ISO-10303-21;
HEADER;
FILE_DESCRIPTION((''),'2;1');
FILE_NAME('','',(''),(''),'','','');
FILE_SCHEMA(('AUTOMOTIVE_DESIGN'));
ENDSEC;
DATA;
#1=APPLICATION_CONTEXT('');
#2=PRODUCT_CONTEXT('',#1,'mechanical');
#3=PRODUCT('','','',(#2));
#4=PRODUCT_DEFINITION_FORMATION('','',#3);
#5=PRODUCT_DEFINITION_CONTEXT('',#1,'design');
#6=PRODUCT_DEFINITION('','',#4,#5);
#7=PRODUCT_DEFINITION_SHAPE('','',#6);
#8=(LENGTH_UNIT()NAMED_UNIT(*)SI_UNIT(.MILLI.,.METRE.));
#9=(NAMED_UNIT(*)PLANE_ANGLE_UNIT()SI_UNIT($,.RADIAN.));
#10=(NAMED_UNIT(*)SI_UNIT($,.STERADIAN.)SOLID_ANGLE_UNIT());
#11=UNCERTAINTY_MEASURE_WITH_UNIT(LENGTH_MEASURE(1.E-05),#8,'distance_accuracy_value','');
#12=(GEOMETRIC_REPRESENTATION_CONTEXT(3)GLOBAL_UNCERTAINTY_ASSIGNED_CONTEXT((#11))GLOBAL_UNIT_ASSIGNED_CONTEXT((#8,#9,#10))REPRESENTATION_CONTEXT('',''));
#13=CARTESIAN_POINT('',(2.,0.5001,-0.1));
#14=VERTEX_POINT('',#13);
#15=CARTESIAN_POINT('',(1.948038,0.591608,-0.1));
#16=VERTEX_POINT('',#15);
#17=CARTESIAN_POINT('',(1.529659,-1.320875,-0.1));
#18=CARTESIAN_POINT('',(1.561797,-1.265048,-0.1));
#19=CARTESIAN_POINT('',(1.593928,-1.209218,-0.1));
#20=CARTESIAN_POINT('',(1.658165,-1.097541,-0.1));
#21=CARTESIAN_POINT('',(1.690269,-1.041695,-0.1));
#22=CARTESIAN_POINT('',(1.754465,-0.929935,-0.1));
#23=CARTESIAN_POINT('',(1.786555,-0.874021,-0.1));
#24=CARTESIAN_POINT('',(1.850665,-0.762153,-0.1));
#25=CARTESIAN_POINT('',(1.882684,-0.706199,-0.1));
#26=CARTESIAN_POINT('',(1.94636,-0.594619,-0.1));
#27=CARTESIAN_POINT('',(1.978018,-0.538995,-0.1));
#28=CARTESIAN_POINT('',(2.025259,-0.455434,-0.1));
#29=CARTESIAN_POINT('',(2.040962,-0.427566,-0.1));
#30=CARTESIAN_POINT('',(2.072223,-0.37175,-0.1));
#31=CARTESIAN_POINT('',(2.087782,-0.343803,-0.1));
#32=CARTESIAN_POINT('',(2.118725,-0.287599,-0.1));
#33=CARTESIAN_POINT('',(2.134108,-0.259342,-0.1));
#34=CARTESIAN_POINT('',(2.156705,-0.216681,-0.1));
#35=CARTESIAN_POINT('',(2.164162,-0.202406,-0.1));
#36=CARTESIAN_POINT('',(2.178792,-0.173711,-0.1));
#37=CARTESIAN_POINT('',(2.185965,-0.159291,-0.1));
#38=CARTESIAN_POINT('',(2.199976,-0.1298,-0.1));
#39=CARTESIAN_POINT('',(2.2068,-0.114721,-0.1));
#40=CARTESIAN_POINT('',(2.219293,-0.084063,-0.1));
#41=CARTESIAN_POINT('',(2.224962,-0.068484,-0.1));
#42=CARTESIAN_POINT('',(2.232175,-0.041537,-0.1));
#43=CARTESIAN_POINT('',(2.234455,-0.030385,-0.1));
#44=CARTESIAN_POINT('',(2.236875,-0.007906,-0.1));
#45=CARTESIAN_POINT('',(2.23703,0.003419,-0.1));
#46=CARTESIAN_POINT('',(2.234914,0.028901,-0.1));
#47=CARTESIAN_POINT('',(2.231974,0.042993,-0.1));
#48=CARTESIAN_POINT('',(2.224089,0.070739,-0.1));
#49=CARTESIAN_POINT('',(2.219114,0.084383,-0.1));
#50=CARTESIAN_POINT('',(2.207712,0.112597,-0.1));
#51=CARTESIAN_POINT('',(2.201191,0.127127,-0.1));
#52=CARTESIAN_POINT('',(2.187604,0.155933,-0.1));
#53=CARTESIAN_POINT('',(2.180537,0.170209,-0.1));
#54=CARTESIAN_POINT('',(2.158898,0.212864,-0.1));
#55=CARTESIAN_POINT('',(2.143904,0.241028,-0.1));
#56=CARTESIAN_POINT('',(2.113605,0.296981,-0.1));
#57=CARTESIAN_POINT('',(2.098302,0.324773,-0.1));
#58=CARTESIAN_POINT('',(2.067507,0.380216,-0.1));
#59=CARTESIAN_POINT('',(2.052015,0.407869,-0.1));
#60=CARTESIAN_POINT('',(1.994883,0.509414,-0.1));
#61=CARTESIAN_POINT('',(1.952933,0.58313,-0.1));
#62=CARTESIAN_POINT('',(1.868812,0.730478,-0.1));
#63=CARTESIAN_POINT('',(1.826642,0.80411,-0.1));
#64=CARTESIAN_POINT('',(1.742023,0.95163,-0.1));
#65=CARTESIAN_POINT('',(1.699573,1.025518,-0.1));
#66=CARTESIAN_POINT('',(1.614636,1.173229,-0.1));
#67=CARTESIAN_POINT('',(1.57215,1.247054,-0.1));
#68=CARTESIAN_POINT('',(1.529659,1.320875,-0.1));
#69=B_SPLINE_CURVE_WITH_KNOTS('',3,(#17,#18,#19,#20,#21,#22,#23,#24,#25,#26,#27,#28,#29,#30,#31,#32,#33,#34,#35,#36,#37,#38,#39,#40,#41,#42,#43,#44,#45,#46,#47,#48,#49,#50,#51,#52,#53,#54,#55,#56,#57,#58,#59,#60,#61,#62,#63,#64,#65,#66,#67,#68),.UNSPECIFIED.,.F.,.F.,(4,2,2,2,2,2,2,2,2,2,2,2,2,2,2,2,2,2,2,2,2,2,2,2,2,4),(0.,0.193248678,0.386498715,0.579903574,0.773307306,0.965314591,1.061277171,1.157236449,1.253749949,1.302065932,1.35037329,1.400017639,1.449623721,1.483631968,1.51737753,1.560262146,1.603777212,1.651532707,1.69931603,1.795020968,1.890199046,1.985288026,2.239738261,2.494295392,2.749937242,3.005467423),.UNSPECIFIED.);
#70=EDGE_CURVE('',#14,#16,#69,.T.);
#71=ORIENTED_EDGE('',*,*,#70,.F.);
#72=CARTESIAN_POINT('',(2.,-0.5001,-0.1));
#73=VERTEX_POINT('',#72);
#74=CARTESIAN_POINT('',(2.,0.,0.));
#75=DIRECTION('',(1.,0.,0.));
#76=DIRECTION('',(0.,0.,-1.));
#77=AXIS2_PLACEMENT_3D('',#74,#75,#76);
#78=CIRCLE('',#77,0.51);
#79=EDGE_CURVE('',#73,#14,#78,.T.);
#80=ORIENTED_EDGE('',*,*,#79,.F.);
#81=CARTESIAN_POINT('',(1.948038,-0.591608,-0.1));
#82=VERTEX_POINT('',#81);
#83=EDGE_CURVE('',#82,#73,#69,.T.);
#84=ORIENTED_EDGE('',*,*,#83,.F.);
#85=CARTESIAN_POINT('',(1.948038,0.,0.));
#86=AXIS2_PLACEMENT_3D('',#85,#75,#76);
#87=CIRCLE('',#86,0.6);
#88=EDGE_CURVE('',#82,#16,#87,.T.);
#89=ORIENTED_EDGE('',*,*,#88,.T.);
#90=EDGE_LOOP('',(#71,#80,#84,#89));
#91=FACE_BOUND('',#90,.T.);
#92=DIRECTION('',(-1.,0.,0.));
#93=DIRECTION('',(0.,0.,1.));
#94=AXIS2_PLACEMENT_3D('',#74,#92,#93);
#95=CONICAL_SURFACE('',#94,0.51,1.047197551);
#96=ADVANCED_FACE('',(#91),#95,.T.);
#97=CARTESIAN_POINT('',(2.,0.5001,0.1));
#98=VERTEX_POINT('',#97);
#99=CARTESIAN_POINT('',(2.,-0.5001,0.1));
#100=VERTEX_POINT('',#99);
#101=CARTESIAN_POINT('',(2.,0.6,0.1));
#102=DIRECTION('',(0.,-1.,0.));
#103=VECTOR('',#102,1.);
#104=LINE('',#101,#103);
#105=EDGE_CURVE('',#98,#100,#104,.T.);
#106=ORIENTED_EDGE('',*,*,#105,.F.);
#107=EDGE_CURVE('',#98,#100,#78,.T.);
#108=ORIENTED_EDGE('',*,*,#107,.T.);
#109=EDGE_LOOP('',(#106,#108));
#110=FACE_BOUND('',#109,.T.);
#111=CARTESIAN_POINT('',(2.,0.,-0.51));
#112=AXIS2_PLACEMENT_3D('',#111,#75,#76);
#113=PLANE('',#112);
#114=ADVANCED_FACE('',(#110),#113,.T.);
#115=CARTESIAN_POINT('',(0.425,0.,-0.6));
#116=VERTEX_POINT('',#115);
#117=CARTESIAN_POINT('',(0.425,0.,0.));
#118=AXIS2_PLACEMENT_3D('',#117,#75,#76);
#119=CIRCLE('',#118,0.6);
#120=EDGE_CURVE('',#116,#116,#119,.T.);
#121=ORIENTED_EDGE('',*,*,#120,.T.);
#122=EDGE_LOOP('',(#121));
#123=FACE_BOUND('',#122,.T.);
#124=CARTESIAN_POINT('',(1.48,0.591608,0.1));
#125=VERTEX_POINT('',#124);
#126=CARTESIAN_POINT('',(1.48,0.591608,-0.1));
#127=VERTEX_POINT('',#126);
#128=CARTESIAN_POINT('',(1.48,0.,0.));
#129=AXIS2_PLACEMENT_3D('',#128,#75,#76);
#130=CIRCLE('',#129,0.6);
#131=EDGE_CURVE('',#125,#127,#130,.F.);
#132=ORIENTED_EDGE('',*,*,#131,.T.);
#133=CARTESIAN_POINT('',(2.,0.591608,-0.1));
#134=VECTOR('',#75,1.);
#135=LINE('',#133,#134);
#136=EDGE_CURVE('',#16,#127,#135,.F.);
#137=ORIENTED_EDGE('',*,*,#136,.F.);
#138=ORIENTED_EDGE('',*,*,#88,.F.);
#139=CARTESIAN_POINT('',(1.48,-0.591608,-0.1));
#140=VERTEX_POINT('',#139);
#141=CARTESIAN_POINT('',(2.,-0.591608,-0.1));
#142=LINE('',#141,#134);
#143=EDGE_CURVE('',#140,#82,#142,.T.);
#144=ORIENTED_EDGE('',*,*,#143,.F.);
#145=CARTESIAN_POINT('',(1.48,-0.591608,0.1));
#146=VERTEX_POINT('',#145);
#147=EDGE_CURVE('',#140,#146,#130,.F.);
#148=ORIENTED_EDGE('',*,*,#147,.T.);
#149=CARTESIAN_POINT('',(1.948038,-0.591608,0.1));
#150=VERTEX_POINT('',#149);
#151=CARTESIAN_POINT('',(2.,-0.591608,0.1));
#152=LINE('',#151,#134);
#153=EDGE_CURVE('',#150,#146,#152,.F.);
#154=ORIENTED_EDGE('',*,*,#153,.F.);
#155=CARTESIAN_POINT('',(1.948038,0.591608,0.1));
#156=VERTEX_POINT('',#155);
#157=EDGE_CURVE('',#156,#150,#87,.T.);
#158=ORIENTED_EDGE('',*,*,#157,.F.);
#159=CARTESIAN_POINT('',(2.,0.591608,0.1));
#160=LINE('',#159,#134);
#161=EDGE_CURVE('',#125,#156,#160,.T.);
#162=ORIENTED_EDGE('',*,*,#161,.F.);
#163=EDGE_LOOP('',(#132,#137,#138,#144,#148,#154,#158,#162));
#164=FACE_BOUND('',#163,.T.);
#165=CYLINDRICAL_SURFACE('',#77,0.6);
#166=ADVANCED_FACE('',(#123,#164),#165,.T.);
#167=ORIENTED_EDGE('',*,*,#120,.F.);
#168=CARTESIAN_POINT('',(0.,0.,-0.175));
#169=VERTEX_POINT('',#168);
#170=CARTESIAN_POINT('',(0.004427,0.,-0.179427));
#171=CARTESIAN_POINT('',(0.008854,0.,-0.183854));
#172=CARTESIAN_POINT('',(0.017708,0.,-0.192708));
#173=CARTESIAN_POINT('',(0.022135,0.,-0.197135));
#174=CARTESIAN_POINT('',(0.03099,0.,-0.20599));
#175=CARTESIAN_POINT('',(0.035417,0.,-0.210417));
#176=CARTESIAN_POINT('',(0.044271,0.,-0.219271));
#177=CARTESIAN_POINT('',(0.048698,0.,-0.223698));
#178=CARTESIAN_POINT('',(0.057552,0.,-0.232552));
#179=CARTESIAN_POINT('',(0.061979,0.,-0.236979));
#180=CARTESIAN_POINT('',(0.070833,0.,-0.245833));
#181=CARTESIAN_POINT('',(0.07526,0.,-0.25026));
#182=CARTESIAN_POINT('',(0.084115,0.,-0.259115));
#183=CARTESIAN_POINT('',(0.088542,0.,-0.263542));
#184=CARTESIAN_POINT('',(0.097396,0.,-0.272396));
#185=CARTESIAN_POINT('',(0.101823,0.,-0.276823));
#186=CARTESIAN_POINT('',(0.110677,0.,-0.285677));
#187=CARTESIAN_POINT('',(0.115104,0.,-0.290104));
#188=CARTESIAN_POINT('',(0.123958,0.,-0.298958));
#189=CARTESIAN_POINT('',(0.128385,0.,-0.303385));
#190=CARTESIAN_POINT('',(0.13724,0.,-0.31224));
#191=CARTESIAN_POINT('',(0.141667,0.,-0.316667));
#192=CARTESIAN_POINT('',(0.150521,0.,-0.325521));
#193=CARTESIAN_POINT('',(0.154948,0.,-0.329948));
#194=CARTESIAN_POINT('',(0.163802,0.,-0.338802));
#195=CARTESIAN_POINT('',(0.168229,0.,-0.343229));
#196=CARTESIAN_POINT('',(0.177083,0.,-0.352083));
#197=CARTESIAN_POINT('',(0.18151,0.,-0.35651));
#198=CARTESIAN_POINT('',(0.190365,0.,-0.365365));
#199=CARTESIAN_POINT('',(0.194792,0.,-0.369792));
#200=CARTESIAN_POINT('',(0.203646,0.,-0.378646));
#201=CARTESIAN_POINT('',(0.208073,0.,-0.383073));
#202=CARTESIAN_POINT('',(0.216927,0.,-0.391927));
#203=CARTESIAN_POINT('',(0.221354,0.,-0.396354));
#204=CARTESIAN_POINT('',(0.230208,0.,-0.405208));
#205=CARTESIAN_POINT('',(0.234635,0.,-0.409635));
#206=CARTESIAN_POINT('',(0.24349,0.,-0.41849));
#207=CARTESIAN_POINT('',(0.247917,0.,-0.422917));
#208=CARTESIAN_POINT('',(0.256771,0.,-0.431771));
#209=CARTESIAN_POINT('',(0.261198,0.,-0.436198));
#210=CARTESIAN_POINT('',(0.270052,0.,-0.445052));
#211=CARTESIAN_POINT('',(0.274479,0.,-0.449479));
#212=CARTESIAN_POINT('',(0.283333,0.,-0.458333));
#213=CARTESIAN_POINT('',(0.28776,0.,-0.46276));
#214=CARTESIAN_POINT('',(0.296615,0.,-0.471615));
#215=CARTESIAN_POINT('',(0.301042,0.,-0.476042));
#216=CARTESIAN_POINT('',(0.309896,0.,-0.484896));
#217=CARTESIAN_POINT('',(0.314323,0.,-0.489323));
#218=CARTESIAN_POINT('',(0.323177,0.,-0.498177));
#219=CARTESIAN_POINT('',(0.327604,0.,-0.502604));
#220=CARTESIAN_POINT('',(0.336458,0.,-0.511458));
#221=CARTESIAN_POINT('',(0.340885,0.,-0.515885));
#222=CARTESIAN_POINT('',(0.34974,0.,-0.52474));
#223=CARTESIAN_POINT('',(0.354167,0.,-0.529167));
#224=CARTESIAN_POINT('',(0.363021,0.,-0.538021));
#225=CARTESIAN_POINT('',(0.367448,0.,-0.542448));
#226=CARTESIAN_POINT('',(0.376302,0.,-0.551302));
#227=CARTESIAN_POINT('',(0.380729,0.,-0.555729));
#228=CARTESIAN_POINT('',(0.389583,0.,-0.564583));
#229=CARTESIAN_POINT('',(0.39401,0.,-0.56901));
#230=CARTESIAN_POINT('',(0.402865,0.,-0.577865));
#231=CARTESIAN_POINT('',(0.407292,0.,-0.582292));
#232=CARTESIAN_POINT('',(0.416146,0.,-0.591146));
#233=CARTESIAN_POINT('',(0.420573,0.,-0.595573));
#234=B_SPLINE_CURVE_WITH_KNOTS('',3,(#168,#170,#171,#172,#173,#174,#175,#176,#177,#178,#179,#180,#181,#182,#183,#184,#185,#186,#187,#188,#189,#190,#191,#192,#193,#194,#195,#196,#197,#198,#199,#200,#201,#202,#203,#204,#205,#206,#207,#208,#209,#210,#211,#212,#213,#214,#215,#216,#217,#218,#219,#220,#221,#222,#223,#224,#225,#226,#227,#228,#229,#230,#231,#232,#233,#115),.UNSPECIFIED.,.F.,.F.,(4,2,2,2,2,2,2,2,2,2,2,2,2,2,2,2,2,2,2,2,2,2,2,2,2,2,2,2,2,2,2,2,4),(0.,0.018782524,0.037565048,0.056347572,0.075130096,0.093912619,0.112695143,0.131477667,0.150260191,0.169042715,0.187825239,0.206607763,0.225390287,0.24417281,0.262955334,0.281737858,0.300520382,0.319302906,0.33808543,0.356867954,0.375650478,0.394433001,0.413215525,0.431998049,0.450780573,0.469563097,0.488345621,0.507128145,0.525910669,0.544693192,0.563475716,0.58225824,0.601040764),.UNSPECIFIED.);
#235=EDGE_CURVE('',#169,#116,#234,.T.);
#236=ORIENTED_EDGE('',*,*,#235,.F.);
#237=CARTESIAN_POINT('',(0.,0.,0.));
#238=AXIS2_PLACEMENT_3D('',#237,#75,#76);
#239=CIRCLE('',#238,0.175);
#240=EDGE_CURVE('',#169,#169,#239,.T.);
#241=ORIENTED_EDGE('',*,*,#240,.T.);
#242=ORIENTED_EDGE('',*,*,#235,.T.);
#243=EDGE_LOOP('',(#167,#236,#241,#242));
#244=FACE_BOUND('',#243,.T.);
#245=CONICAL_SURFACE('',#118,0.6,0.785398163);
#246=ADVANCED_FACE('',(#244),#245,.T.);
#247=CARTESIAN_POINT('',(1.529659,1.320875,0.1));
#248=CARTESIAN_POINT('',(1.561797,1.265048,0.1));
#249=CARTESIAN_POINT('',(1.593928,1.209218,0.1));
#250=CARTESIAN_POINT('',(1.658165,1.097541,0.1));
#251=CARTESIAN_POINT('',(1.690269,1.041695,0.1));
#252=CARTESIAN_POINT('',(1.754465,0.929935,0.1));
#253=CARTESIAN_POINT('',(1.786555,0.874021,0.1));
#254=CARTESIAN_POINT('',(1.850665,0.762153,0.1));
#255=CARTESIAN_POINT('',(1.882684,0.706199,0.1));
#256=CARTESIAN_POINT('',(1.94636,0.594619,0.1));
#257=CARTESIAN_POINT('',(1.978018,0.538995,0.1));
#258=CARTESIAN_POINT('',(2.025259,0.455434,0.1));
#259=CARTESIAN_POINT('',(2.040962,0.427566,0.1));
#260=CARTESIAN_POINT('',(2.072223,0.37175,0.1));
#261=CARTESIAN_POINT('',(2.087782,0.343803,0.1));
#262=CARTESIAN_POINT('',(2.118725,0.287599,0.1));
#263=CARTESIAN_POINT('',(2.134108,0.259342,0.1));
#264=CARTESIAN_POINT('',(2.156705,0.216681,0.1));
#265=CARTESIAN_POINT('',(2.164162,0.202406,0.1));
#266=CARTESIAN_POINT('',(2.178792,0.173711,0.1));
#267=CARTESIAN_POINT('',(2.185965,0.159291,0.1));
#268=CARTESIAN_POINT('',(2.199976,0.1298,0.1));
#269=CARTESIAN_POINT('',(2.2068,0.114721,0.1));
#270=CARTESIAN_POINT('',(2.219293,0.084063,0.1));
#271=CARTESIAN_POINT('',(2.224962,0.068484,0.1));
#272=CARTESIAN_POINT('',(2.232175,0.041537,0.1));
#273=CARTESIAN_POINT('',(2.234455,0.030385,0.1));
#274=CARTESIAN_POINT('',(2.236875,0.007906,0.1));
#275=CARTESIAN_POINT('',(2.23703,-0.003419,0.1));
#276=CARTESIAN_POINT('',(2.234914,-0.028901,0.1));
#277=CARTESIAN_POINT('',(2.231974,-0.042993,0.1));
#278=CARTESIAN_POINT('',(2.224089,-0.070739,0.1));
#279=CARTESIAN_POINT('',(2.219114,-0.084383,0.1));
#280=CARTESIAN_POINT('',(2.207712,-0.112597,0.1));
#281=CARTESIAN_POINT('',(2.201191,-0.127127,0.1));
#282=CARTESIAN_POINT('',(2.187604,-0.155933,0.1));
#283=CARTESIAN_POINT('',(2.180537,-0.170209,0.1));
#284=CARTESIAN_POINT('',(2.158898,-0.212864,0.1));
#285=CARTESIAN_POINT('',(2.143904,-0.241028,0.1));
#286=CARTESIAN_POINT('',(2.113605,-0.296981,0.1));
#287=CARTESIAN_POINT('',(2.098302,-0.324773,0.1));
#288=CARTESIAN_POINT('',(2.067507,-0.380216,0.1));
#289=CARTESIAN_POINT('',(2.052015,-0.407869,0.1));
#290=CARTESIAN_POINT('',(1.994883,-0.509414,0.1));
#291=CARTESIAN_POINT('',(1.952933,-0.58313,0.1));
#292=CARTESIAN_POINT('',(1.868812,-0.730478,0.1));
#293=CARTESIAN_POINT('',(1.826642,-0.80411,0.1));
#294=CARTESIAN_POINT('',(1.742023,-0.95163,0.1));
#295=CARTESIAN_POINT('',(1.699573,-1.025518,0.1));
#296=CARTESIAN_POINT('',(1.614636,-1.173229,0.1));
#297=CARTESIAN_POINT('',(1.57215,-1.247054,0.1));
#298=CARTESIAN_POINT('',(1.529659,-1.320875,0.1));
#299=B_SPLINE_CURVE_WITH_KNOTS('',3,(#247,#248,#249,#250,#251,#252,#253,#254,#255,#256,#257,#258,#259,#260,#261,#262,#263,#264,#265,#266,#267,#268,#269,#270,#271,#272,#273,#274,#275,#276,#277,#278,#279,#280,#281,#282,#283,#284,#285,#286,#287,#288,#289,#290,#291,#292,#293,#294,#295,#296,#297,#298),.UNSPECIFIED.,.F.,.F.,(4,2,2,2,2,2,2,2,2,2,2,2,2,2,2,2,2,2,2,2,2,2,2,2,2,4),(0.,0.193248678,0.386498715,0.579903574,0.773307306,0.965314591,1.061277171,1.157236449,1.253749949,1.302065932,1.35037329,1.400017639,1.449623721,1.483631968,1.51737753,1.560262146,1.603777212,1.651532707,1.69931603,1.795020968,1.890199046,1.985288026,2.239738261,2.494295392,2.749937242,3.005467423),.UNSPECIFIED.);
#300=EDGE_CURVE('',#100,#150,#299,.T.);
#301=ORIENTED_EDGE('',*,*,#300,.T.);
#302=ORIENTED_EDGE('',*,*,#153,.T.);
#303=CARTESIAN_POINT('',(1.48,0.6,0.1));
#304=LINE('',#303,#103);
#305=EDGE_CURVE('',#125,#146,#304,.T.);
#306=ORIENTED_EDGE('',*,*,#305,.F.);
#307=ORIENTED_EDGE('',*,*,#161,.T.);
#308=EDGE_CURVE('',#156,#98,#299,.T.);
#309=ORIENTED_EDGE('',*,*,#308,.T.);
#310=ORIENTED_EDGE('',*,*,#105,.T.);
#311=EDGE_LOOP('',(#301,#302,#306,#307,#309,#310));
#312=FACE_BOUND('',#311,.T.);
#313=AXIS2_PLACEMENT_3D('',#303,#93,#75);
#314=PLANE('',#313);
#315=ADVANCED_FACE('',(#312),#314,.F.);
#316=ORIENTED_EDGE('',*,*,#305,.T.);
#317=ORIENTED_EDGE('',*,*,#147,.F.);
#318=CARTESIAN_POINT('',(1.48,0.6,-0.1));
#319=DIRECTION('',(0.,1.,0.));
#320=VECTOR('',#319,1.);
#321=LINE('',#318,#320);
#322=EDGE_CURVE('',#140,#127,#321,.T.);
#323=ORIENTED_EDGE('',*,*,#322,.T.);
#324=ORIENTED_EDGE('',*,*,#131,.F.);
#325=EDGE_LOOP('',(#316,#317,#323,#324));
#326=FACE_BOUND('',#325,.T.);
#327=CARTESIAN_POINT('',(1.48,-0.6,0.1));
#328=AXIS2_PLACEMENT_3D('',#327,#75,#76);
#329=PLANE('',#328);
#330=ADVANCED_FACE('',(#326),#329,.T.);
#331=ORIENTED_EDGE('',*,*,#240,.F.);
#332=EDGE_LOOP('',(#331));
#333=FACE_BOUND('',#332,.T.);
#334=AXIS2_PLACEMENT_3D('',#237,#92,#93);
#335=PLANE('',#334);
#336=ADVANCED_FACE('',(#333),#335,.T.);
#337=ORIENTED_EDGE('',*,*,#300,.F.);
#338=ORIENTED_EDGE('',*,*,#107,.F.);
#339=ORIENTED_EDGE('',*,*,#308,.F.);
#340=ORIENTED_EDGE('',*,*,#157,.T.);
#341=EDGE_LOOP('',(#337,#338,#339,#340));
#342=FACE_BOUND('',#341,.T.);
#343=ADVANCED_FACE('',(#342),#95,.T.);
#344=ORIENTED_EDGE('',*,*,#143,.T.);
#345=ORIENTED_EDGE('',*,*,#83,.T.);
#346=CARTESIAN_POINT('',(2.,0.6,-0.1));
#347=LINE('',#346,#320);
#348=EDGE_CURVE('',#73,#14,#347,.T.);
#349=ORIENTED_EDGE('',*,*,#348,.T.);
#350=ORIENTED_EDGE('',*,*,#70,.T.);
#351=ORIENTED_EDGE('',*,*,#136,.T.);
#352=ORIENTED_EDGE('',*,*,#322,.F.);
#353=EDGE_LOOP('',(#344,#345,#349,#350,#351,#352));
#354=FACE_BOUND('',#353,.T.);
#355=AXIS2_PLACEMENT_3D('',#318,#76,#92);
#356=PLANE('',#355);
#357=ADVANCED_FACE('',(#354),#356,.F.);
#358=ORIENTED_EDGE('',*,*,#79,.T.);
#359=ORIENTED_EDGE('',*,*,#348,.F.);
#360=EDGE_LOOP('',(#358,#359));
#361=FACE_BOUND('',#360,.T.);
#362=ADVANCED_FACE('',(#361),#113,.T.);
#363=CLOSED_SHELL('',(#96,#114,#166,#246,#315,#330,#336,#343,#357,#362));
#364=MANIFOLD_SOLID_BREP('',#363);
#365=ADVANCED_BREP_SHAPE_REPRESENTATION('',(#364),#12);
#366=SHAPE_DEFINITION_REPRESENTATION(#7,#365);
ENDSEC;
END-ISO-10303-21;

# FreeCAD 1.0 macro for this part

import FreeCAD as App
import Part
import Sketcher
Q = App.Units.Quantity


def add_polygon(sketch, points):
    """Adds a closed chain of lines whose ends are joined by coincident constraints."""
    first, n = sketch.GeometryCount, len(points)
    for a, b in zip(points, points[1:] + points[:1]):
        sketch.addGeometry(Part.LineSegment(App.Vector(*a, 0), App.Vector(*b, 0)), False)
    for i in range(n):
        sketch.addConstraint(Sketcher.Constraint("Coincident", first + i, 2, first + (i + 1) % n, 1))

doc = App.newDocument("Part")
body = doc.addObject("PartDesign::Body", "Body")

sketch1 = doc.addObject("Sketcher::SketchObject", "Sketch")
body.addObject(sketch1)
sketch1.AttachmentSupport = (doc.XZ_Plane, [""])
sketch1.MapMode = "FlatFace"
add_polygon(sketch1, [(0, -0.17), (0, 0), (2, 0), (2, -0.51), (1.95, -0.6), (0.42, -0.6)])
sketch1.addConstraint([
    Sketcher.Constraint("Vertical", 0),
    Sketcher.Constraint("Horizontal", 1),
    Sketcher.Constraint("Vertical", 2),
    Sketcher.Constraint("Horizontal", 4),
    Sketcher.Constraint("Coincident", 0, 2, -1, 1),
    Sketcher.Constraint("DistanceX", 1, 1, 1, 2, Q("2 mm")),
    Sketcher.Constraint("Angle", 3, Q("-120 deg")),
    Sketcher.Constraint("Angle", 5, Q("135 deg")),
    Sketcher.Constraint("DistanceY", 2, 2, 2, 1, Q("0.51 mm")),
    Sketcher.Constraint("DistanceY", 3, 2, -1, 1, Q("0.6 mm")),
    Sketcher.Constraint("DistanceY", 0, 1, 0, 2, Q("0.175 mm")),
])
revolution = doc.addObject("PartDesign::Revolution", "Revolution")
body.addObject(revolution)
revolution.Profile = sketch1
revolution.ReferenceAxis = (sketch1, ["H_Axis"])
revolution.Angle = 360

sketch2 = doc.addObject("Sketcher::SketchObject", "Sketch001")
body.addObject(sketch2)
sketch2.AttachmentSupport = (doc.YZ_Plane, [""])
sketch2.MapMode = "FlatFace"
sketch2.AttachmentOffset = App.Placement(App.Vector(0, 0, 2), App.Rotation())
add_polygon(sketch2, [(0.6, 0.1), (-0.6, 0.1), (-0.6, -0.1), (0.6, -0.1)])
sketch2.addConstraint([
    Sketcher.Constraint("Horizontal", 0),
    Sketcher.Constraint("Vertical", 1),
    Sketcher.Constraint("Horizontal", 2),
    Sketcher.Constraint("Vertical", 3),
    Sketcher.Constraint("Symmetric", 0, 2, 2, 2, -1, 1),
    Sketcher.Constraint("DistanceX", 0, 2, 0, 1, Q("1.2 mm")),
    Sketcher.Constraint("DistanceY", 1, 2, 1, 1, Q("0.2 mm")),
])
pocket1 = doc.addObject("PartDesign::Pocket", "Pocket")
body.addObject(pocket1)
pocket1.Profile = sketch2
pocket1.Length = 0.52

doc.recompute()
